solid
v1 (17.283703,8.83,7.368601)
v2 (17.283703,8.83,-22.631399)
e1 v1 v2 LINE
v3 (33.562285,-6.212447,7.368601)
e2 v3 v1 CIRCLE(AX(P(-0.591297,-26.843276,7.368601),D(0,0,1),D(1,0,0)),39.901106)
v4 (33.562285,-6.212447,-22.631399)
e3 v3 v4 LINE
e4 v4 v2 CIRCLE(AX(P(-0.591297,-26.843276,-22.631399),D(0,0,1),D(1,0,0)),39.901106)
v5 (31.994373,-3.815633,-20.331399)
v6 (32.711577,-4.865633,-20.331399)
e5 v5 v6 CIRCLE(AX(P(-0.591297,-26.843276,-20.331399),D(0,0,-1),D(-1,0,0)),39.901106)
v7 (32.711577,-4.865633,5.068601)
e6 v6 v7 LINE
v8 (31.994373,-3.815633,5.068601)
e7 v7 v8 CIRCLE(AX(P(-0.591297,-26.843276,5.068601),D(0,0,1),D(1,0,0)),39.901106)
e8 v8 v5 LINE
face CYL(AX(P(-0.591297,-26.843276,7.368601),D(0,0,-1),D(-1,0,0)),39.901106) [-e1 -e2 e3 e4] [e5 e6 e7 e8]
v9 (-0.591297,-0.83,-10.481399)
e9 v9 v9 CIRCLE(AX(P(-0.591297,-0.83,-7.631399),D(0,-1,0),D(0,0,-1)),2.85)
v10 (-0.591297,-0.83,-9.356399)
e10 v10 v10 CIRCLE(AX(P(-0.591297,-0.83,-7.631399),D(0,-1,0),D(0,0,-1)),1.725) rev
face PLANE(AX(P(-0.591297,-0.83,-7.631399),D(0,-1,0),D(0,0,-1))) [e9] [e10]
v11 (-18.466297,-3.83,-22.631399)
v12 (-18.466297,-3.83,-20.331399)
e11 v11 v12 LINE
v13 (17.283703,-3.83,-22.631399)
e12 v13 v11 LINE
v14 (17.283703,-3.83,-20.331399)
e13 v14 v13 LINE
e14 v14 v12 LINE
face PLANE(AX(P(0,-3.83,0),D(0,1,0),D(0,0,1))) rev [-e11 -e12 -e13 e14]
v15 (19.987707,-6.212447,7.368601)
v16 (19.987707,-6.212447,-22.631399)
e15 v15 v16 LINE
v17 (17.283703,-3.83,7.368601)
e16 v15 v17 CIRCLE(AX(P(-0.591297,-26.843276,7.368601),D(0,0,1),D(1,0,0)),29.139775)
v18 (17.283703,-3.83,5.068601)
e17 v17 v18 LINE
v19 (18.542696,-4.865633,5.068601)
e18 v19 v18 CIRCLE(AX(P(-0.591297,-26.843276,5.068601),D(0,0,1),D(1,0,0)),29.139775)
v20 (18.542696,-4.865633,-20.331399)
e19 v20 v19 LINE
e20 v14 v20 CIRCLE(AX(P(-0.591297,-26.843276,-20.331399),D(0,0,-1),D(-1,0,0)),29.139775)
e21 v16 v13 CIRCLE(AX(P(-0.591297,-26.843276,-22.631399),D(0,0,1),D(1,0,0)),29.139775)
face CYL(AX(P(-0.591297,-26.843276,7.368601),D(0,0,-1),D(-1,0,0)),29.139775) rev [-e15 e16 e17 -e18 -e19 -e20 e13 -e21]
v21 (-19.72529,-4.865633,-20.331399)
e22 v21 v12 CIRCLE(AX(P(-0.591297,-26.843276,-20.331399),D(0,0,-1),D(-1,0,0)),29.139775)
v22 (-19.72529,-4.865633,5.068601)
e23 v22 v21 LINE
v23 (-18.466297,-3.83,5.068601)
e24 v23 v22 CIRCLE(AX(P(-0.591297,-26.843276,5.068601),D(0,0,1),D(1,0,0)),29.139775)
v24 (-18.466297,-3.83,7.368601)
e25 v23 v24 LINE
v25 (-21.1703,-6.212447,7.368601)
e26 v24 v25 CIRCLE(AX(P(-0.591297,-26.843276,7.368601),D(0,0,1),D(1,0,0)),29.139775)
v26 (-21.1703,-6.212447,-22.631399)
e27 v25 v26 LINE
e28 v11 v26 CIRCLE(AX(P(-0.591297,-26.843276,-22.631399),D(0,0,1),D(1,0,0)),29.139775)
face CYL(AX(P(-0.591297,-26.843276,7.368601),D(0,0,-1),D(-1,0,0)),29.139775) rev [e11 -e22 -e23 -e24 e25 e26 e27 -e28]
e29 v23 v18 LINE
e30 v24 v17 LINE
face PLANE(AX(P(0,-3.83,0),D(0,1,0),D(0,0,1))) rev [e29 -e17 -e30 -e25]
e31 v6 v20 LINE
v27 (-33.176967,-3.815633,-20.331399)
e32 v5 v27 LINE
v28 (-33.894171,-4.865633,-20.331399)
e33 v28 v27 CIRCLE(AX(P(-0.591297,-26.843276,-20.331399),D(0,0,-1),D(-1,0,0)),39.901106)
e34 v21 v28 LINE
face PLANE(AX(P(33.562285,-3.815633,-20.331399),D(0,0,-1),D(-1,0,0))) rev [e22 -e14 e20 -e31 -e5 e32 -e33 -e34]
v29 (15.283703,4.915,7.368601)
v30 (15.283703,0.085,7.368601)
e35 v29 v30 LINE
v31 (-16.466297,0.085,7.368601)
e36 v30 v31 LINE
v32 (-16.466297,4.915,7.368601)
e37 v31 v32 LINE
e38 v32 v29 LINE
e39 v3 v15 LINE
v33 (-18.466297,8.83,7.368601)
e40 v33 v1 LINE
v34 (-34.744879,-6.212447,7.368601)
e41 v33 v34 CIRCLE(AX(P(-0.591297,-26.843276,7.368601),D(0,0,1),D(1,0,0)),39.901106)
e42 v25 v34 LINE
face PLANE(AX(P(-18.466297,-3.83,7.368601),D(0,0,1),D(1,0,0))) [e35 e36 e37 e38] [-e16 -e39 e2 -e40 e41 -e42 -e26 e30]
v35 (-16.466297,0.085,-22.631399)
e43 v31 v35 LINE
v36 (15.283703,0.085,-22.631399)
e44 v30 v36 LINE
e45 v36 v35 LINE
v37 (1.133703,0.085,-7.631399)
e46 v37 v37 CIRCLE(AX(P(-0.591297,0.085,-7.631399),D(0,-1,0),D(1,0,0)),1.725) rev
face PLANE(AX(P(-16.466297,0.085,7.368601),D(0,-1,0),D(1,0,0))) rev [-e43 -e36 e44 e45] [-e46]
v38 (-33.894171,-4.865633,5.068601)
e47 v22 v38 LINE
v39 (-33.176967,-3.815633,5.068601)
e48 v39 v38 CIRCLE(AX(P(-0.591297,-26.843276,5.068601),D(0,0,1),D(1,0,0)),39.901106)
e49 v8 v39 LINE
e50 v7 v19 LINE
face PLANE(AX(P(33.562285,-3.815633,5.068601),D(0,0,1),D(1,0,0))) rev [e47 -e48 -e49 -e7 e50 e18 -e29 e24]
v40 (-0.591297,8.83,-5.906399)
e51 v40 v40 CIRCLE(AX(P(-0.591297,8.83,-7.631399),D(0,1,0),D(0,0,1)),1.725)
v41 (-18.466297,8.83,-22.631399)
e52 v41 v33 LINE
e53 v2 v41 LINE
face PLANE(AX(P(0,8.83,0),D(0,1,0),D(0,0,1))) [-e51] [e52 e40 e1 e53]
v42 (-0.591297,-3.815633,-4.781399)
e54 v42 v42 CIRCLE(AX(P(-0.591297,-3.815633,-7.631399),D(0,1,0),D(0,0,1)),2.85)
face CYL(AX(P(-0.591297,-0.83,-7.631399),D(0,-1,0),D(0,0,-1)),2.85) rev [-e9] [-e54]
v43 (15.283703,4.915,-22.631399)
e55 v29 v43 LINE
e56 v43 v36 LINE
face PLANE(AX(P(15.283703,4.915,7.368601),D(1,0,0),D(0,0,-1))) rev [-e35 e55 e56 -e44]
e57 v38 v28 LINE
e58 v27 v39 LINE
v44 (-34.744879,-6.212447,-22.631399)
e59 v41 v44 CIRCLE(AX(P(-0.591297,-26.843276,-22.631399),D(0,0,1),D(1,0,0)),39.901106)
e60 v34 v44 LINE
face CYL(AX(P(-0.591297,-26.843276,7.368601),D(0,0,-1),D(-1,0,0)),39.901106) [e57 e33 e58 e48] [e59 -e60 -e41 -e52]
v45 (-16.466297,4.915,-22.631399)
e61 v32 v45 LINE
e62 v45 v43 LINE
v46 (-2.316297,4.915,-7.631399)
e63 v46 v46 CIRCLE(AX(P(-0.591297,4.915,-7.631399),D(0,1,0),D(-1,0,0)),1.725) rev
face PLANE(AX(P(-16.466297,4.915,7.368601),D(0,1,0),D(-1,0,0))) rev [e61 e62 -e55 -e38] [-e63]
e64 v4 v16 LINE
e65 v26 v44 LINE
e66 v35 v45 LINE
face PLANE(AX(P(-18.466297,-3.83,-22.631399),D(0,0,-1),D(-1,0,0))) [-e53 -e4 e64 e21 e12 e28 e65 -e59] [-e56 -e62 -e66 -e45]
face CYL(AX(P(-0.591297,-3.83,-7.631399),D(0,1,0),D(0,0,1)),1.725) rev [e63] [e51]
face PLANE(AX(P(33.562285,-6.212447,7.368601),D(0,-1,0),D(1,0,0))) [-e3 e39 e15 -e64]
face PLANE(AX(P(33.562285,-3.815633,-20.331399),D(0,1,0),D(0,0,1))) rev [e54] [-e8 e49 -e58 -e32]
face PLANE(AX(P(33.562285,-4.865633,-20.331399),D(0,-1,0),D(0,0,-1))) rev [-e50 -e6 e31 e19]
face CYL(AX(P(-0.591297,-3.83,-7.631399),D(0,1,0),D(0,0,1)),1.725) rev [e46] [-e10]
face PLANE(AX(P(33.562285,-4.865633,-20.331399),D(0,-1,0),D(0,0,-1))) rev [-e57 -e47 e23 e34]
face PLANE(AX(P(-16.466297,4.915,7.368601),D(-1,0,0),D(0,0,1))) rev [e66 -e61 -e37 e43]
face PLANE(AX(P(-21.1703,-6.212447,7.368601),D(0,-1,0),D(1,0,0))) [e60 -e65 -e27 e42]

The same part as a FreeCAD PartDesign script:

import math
import FreeCAD as App
import Part
import Sketcher

V = App.Vector
Q = App.Units.Quantity


def add_polygon(sketch, points):
    """Adds a closed chain of lines whose ends are joined by coincident constraints."""
    first, n = sketch.GeometryCount, len(points)
    for a, b in zip(points, points[1:] + points[:1]):
        sketch.addGeometry(Part.LineSegment(App.Vector(*a, 0), App.Vector(*b, 0)), False)
    for i in range(n):
        sketch.addConstraint(Sketcher.Constraint("Coincident", first + i, 2, first + (i + 1) % n, 1))

doc = App.newDocument("Part")
body = doc.addObject("PartDesign::Body", "Body")

# Sketch on XZ plane
sketch1 = body.newObject("Sketcher::SketchObject", "Sketch")
sketch1.AttachmentSupport = (doc.getObject("XZ_Plane"), [""])
sketch1.MapMode = "FlatFace"
add_polygon(sketch1, [(-18.5, -22.6), (-18.5, 7.4), (17.3, 7.4), (17.3, -22.6)])  # lines 0-3
sketch1.addGeometry(Part.Circle(V(-0.6, -7.6, 0), V(0, 0, 1), 1.7), False)  # 4
sketch1.addConstraint([
    Sketcher.Constraint("Vertical", 0),
    Sketcher.Constraint("Horizontal", 1),
    Sketcher.Constraint("Vertical", 2),
    Sketcher.Constraint("Horizontal", 3),
    Sketcher.Constraint("Diameter", 4, Q("3.45 mm")),
    Sketcher.Constraint("DistanceY", 0, 1, 0, 2, Q("30 mm")),
    Sketcher.Constraint("DistanceY", 4, 3, 0, 2, Q("15 mm")),
    Sketcher.Constraint("DistanceX", 1, 1, 1, 2, Q("35.75 mm")),
    Sketcher.Constraint("DistanceX", 0, 2, 4, 3, Q("17.875 mm")),
    Sketcher.Constraint("DistanceY", 4, 3, -1, 1, Q("7.631399 mm")),
    Sketcher.Constraint("DistanceX", 4, 3, -1, 1, Q("0.591297 mm")),
])
pad1 = body.newObject("PartDesign::Pad", "Pad")
pad1.Profile = sketch1
pad1.Type = "TwoLengths"
pad1.Length = 8.83
pad1.Length2 = 3.83
pad1.Reversed = True

# Sketch on XY plane
sketch2 = body.newObject("Sketcher::SketchObject", "Sketch001")
sketch2.AttachmentSupport = (doc.getObject("XY_Plane"), [""])
sketch2.MapMode = "FlatFace"
sketch2.AttachmentOffset = App.Placement(V(0, 0, -22.631399), App.Rotation())
add_polygon(sketch2, [(15.3, 4.9), (15.3, 0.1), (-16.5, 0.1), (-16.5, 4.9)])  # lines 0-3
sketch2.addConstraint([
    Sketcher.Constraint("Vertical", 0),
    Sketcher.Constraint("Horizontal", 1),
    Sketcher.Constraint("Vertical", 2),
    Sketcher.Constraint("Horizontal", 3),
    Sketcher.Constraint("DistanceX", 1, 2, 1, 1, Q("31.75 mm")),
    Sketcher.Constraint("DistanceY", 0, 2, 0, 1, Q("4.83 mm")),
    Sketcher.Constraint("DistanceY", -1, 1, 0, 2, Q("0.085 mm")),
    Sketcher.Constraint("DistanceX", -1, 1, 0, 2, Q("15.283703 mm")),
])
pocket1 = body.newObject("PartDesign::Pocket", "Pocket")
pocket1.Profile = sketch2
pocket1.Type = "ThroughAll"
pocket1.Reversed = True

# Sketch on XY plane
sketch3 = body.newObject("Sketcher::SketchObject", "Sketch002")
sketch3.AttachmentSupport = (doc.getObject("XY_Plane"), [""])
sketch3.MapMode = "FlatFace"
sketch3.addGeometry([
    Part.LineSegment(V(20, -6.2, 0), V(33.6, -6.2, 0)),  # 0
    Part.ArcOfCircle(Part.Circle(V(-0.6, -26.8, 0), V(0, 0, 1), 39.9), math.radians(31), math.radians(63)),  # 1
    Part.LineSegment(V(17.3, 8.8, 0), V(17.3, -3.8, 0)),  # 2
    Part.ArcOfCircle(Part.Circle(V(-0.6, -26.8, 0), V(0, 0, 1), 29.1), math.radians(45.07), math.radians(52.16)),  # 3
    Part.LineSegment(V(-34.7, -6.2, 0), V(-21.2, -6.2, 0)),  # 4
    Part.ArcOfCircle(Part.Circle(V(-0.6, -26.8, 0), V(0, 0, 1), 29.1), math.radians(127.84), math.radians(134.93)),  # 5
    Part.LineSegment(V(-18.5, -3.8, 0), V(-18.5, 8.8, 0)),  # 6
    Part.ArcOfCircle(Part.Circle(V(-0.6, -26.8, 0), V(0, 0, 1), 39.9), math.radians(117), math.radians(149)),  # 7
], False)
sketch3.addConstraint([
    Sketcher.Constraint("Coincident", 0, 2, 1, 1),
    Sketcher.Constraint("Coincident", 1, 2, 2, 1),
    Sketcher.Constraint("Coincident", 2, 2, 3, 2),
    Sketcher.Constraint("Coincident", 3, 1, 0, 1),
    Sketcher.Constraint("Coincident", 4, 2, 5, 2),
    Sketcher.Constraint("Coincident", 5, 1, 6, 1),
    Sketcher.Constraint("Coincident", 6, 2, 7, 1),
    Sketcher.Constraint("Coincident", 7, 2, 4, 1),
    Sketcher.Constraint("Horizontal", 0),
    Sketcher.Constraint("Vertical", 2),
    Sketcher.Constraint("Horizontal", 4),
    Sketcher.Constraint("Vertical", 6),
    Sketcher.Constraint("Coincident", 3, 3, 1, 3),
    Sketcher.Constraint("Coincident", 5, 3, 1, 3),
    Sketcher.Constraint("Coincident", 7, 3, 1, 3),
    Sketcher.Constraint("Equal", 3, 5),
    Sketcher.Constraint("Equal", 1, 7),
    Sketcher.Constraint("Horizontal", 3, 1, 4, 2),
    Sketcher.Constraint("Horizontal", 2, 2, 5, 1),
    Sketcher.Constraint("DistanceY", 2, 2, 2, 1, Q("12.66 mm")),
    Sketcher.Constraint("DistanceY", -1, 1, 1, 2, Q("8.83 mm")),
    Sketcher.Constraint("DistanceX", 6, 2, 1, 2, Q("35.75 mm")),
    Sketcher.Constraint("Radius", 1, Q("39.901106 mm")),
    Sketcher.Constraint("DistanceX", 0, 1, 0, 2, Q("13.574578 mm")),
    Sketcher.Constraint("DistanceX", 4, 2, -1, 1, Q("21.1703 mm")),
])
pad2 = body.newObject("PartDesign::Pad", "Pad001")
pad2.Profile = sketch3
pad2.Type = "TwoLengths"
pad2.Length = 7.368601
pad2.Length2 = 22.631399

# Sketch on YZ plane
sketch4 = body.newObject("Sketcher::SketchObject", "Sketch003")
sketch4.AttachmentSupport = (doc.getObject("YZ_Plane"), [""])
sketch4.MapMode = "FlatFace"
sketch4.AttachmentOffset = App.Placement(V(0, 0, -34.744879), App.Rotation())
add_polygon(sketch4, [(-3.8, -20.3), (-4.9, -20.3), (-4.9, 5.1), (-3.8, 5.1)])  # lines 0-3
sketch4.addConstraint([
    Sketcher.Constraint("Horizontal", 0),
    Sketcher.Constraint("Vertical", 1),
    Sketcher.Constraint("Horizontal", 2),
    Sketcher.Constraint("Vertical", 3),
    Sketcher.Constraint("DistanceY", 1, 1, 1, 2, Q("25.4 mm")),
    Sketcher.Constraint("DistanceX", 0, 2, 0, 1, Q("1.05 mm")),
    Sketcher.Constraint("DistanceY", 0, 2, -1, 1, Q("20.331399 mm")),
    Sketcher.Constraint("DistanceX", 0, 2, -1, 1, Q("4.865633 mm")),
])
pocket2 = body.newObject("PartDesign::Pocket", "Pocket001")
pocket2.Profile = sketch4
pocket2.Type = "ThroughAll"
pocket2.Reversed = True

# Sketch on XZ plane
sketch5 = body.newObject("Sketcher::SketchObject", "Sketch004")
sketch5.AttachmentSupport = (doc.getObject("XZ_Plane"), [""])
sketch5.MapMode = "FlatFace"
sketch5.AttachmentOffset = App.Placement(V(0, 0, 3.83), App.Rotation())
sketch5.addGeometry(Part.Circle(V(-0.6, -7.6, 0), V(0, 0, 1), 2.9), False)
sketch5.addConstraint([
    Sketcher.Constraint("Diameter", 0, Q("5.7 mm")),
    Sketcher.Constraint("DistanceY", 0, 3, -1, 1, Q("7.631399 mm")),
    Sketcher.Constraint("DistanceX", 0, 3, -1, 1, Q("0.591297 mm")),
])
pocket3 = body.newObject("PartDesign::Pocket", "Pocket002")
pocket3.Profile = sketch5
pocket3.Length = 3

doc.recompute()
